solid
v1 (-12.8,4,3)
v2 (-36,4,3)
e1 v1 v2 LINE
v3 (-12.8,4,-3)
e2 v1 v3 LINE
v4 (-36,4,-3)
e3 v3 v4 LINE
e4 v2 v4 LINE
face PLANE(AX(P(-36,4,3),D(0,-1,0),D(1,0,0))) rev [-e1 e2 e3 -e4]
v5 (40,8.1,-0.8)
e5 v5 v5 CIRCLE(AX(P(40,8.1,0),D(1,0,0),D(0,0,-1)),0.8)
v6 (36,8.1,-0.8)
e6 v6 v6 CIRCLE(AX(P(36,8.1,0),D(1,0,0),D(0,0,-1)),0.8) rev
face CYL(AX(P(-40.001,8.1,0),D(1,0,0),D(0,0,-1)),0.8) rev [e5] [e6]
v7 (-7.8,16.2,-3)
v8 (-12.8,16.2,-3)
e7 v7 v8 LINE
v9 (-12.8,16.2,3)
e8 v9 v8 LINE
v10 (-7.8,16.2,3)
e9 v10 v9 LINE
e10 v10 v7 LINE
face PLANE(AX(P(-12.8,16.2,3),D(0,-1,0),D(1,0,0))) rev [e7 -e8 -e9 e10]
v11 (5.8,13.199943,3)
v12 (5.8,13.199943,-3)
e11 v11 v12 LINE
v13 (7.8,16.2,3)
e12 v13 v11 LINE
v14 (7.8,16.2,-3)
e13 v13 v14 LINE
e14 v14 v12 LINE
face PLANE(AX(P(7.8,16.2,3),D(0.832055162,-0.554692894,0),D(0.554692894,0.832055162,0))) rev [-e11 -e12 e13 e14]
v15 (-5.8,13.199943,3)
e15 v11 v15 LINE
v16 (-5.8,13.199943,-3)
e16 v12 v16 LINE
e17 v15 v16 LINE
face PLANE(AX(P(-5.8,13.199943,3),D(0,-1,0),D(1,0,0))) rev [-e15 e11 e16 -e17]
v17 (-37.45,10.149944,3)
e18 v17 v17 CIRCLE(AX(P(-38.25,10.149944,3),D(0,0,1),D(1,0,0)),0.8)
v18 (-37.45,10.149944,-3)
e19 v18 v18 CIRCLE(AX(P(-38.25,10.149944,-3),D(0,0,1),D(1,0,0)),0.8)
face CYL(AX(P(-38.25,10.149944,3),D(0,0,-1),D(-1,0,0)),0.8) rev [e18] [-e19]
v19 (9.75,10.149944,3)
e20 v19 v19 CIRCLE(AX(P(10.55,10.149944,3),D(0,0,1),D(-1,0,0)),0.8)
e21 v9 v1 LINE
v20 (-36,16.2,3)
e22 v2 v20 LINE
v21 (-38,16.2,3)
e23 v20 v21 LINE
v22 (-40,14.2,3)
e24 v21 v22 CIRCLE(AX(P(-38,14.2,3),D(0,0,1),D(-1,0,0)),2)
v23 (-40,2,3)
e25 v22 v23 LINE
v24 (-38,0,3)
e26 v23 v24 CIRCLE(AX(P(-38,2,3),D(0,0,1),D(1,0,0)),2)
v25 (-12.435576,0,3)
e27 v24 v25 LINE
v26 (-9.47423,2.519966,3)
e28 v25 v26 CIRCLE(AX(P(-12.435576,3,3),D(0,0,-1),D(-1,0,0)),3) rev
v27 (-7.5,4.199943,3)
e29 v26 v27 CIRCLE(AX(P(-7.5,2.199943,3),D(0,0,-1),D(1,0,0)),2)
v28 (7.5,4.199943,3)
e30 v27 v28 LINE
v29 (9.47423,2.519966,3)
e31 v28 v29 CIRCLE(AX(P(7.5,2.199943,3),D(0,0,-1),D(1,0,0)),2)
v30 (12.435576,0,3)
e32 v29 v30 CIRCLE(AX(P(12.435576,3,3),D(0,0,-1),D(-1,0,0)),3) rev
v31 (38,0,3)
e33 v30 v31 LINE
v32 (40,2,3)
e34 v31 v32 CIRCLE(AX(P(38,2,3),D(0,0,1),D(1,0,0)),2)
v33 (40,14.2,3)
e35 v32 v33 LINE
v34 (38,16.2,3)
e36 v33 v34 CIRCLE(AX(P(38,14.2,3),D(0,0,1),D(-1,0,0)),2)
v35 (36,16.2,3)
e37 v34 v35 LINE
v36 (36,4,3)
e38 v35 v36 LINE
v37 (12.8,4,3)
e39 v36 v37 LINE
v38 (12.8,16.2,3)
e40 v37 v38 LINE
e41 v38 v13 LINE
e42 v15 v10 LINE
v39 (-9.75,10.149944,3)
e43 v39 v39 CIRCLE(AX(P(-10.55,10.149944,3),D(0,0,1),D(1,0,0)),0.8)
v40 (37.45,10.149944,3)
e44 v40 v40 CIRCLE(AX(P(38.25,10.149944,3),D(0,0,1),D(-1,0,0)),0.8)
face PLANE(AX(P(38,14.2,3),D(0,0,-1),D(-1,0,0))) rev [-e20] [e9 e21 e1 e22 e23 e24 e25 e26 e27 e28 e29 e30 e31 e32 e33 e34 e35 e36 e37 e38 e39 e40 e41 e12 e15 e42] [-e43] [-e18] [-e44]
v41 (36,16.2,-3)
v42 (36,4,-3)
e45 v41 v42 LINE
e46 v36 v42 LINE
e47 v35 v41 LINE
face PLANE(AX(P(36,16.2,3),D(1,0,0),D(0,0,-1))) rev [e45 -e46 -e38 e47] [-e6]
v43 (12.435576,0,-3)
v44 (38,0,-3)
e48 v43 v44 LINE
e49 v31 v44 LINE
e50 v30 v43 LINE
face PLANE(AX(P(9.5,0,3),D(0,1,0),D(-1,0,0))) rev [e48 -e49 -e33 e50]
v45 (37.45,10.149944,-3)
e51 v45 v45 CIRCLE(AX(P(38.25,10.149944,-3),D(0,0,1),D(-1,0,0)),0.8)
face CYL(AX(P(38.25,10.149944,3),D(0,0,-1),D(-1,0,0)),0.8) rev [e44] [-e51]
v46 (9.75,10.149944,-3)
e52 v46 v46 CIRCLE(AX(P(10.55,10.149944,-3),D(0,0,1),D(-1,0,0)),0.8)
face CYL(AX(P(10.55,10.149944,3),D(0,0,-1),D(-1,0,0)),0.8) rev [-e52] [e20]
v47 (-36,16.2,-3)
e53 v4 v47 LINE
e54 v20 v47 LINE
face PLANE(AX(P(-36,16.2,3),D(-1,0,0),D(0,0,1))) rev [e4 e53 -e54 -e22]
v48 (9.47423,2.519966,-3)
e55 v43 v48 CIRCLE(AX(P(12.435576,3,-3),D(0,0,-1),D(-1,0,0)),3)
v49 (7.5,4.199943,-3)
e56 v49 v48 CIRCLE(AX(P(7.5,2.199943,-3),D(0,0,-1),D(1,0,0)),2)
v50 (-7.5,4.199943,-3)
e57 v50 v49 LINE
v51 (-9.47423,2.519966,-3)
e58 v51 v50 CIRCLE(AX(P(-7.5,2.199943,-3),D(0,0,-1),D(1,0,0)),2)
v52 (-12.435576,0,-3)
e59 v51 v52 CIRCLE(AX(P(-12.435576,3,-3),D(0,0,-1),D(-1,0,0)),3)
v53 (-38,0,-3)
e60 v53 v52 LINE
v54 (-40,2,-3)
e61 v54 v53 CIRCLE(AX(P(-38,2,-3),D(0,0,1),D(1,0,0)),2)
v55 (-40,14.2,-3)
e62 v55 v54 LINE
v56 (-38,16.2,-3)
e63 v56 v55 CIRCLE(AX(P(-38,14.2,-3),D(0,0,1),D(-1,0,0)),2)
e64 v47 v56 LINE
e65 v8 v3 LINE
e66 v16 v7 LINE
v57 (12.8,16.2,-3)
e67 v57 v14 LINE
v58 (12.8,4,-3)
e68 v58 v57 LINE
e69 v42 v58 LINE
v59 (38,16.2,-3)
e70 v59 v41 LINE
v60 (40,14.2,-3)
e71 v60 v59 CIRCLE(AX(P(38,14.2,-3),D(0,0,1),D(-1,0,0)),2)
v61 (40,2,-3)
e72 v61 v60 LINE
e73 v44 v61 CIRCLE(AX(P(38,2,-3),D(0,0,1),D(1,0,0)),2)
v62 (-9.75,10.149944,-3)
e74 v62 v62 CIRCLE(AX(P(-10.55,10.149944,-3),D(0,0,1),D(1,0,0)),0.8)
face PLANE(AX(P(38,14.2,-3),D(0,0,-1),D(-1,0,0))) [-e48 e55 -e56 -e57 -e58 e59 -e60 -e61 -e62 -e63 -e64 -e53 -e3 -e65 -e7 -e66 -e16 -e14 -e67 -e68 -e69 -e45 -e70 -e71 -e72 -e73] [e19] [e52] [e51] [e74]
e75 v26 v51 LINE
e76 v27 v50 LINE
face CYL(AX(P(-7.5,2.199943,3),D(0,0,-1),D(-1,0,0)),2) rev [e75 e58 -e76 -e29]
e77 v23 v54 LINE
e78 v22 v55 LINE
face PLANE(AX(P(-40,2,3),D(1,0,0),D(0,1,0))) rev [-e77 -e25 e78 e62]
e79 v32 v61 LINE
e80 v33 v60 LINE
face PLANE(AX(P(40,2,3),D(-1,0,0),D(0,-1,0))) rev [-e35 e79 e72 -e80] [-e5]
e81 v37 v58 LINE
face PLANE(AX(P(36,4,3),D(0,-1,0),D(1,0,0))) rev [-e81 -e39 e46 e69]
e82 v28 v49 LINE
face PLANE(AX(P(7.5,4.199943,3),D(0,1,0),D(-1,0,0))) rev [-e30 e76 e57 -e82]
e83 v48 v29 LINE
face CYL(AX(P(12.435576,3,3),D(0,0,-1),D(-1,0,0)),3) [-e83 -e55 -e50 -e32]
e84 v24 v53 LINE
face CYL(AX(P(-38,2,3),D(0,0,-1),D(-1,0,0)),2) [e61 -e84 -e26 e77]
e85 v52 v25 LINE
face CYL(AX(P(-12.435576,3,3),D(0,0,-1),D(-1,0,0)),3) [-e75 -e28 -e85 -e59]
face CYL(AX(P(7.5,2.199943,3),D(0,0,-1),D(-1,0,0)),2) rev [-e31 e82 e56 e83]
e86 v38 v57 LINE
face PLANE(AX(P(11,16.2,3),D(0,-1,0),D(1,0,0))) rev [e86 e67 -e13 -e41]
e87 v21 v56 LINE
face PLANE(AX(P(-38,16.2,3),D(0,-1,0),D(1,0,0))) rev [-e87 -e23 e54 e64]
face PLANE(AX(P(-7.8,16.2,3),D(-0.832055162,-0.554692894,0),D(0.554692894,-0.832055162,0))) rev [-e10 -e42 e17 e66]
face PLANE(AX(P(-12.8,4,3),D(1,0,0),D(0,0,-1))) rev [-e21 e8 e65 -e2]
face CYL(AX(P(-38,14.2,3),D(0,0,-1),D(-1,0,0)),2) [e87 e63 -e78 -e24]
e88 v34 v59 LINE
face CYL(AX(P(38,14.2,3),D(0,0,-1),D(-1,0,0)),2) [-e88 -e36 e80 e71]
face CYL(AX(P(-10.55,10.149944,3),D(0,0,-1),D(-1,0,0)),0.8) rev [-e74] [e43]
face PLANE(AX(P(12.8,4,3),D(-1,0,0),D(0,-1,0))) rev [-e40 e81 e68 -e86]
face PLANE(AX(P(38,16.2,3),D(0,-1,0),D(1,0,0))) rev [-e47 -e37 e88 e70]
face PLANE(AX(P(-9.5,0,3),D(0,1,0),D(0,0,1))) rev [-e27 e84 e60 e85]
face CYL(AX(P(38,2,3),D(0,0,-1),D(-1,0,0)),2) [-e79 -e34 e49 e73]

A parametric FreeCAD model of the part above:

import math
import FreeCAD as App
import Part
import Sketcher

V = App.Vector


def edges_at(feature, points):
    """Names of the edges that pass closest to the given points."""
    edges = feature.Shape.Edges
    near = lambda p: min(range(len(edges)), key=lambda i: edges[i].distToShape(Part.Vertex(*p))[0])
    return sorted({f"Edge{near(p) + 1}" for p in points})

doc = App.newDocument("Part")
body = doc.addObject("PartDesign::Body", "Body")

# Sketch on XY plane
sketch1 = doc.addObject("Sketcher::SketchObject", "Sketch")
body.addObject(sketch1)
sketch1.AttachmentSupport = (doc.XY_Plane, [""])
sketch1.MapMode = "FlatFace"
sketch1.addGeometry([
    Part.LineSegment(V(-40, 14.2, 0), V(-40, 2, 0)),  # 0
    Part.ArcOfCircle(Part.Circle(V(-38, 2, 0), V(0, 0, 1), 2), math.radians(-180), math.radians(-90)),  # 1
    Part.LineSegment(V(-38, 0, 0), V(-9.5, 0, 0)),  # 2
    Part.LineSegment(V(-9.5, 0, 0), V(-9.5, 2.2, 0)),  # 3
    Part.ArcOfCircle(Part.Circle(V(-7.5, 2.2, 0), V(0, 0, 1), 2), math.radians(90), math.radians(180)),  # 4
    Part.LineSegment(V(-7.5, 4.2, 0), V(7.5, 4.2, 0)),  # 5
    Part.ArcOfCircle(Part.Circle(V(7.5, 2.2, 0), V(0, 0, 1), 2), math.radians(0), math.radians(90)),  # 6
    Part.LineSegment(V(9.5, 2.2, 0), V(9.5, 0, 0)),  # 7
    Part.LineSegment(V(9.5, 0, 0), V(38, 0, 0)),  # 8
    Part.ArcOfCircle(Part.Circle(V(38, 2, 0), V(0, 0, 1), 2), math.radians(-90), math.radians(0)),  # 9
    Part.LineSegment(V(40, 2, 0), V(40, 14.2, 0)),  # 10
    Part.ArcOfCircle(Part.Circle(V(38, 14.2, 0), V(0, 0, 1), 2), math.radians(0), math.radians(90)),  # 11
    Part.LineSegment(V(38, 16.2, 0), V(36, 16.2, 0)),  # 12
    Part.LineSegment(V(36, 16.2, 0), V(36, 4, 0)),  # 13
    Part.LineSegment(V(36, 4, 0), V(12.8, 4, 0)),  # 14
    Part.LineSegment(V(12.8, 4, 0), V(12.8, 16.2, 0)),  # 15
    Part.LineSegment(V(12.8, 16.2, 0), V(7.8, 16.2, 0)),  # 16
    Part.LineSegment(V(7.8, 16.2, 0), V(5.8, 13.2, 0)),  # 17
    Part.LineSegment(V(5.8, 13.2, 0), V(-5.8, 13.2, 0)),  # 18
    Part.LineSegment(V(-5.8, 13.2, 0), V(-7.8, 16.2, 0)),  # 19
    Part.LineSegment(V(-7.8, 16.2, 0), V(-12.8, 16.2, 0)),  # 20
    Part.LineSegment(V(-12.8, 16.2, 0), V(-12.8, 4, 0)),  # 21
    Part.LineSegment(V(-12.8, 4, 0), V(-36, 4, 0)),  # 22
    Part.LineSegment(V(-36, 4, 0), V(-36, 16.2, 0)),  # 23
    Part.LineSegment(V(-36, 16.2, 0), V(-38, 16.2, 0)),  # 24
    Part.ArcOfCircle(Part.Circle(V(-38, 14.2, 0), V(0, 0, 1), 2), math.radians(90), math.radians(180)),  # 25
    Part.Circle(V(38.2, 10.1, 0), V(0, 0, 1), 0.8),  # 26
    Part.Circle(V(10.6, 10.1, 0), V(0, 0, 1), 0.8),  # 27
    Part.Circle(V(-10.6, 10.1, 0), V(0, 0, 1), 0.8),  # 28
    Part.Circle(V(-38.2, 10.1, 0), V(0, 0, 1), 0.8),  # 29
], False)
sketch1.addConstraint([
    Sketcher.Constraint("Tangent", 0, 2, 1, 1),
    Sketcher.Constraint("Tangent", 1, 2, 2, 1),
    Sketcher.Constraint("Coincident", 2, 2, 3, 1),
    Sketcher.Constraint("Tangent", 3, 2, 4, 2),
    Sketcher.Constraint("Tangent", 4, 1, 5, 1),
    Sketcher.Constraint("Tangent", 5, 2, 6, 2),
    Sketcher.Constraint("Tangent", 6, 1, 7, 1),
    Sketcher.Constraint("Coincident", 7, 2, 8, 1),
    Sketcher.Constraint("Tangent", 8, 2, 9, 1),
    Sketcher.Constraint("Tangent", 9, 2, 10, 1),
    Sketcher.Constraint("Tangent", 10, 2, 11, 1),
    Sketcher.Constraint("Tangent", 11, 2, 12, 1),
    Sketcher.Constraint("Coincident", 12, 2, 13, 1),
    Sketcher.Constraint("Coincident", 13, 2, 14, 1),
    Sketcher.Constraint("Coincident", 14, 2, 15, 1),
    Sketcher.Constraint("Coincident", 15, 2, 16, 1),
    Sketcher.Constraint("Coincident", 16, 2, 17, 1),
    Sketcher.Constraint("Coincident", 17, 2, 18, 1),
    Sketcher.Constraint("Coincident", 18, 2, 19, 1),
    Sketcher.Constraint("Coincident", 19, 2, 20, 1),
    Sketcher.Constraint("Coincident", 20, 2, 21, 1),
    Sketcher.Constraint("Coincident", 21, 2, 22, 1),
    Sketcher.Constraint("Coincident", 22, 2, 23, 1),
    Sketcher.Constraint("Coincident", 23, 2, 24, 1),
    Sketcher.Constraint("Tangent", 24, 2, 25, 1),
    Sketcher.Constraint("Tangent", 25, 2, 0, 1),
    Sketcher.Constraint("Vertical", 0),
    Sketcher.Constraint("Horizontal", 2),
    Sketcher.Constraint("Vertical", 3),
    Sketcher.Constraint("Horizontal", 5),
    Sketcher.Constraint("Vertical", 7),
    Sketcher.Constraint("Horizontal", 8),
    Sketcher.Constraint("Vertical", 10),
    Sketcher.Constraint("Horizontal", 12),
    Sketcher.Constraint("Vertical", 13),
    Sketcher.Constraint("Horizontal", 14),
    Sketcher.Constraint("Vertical", 15),
    Sketcher.Constraint("Horizontal", 16),
    Sketcher.Constraint("Horizontal", 18),
    Sketcher.Constraint("Horizontal", 20),
    Sketcher.Constraint("Vertical", 21),
    Sketcher.Constraint("Horizontal", 22),
    Sketcher.Constraint("Vertical", 23),
    Sketcher.Constraint("Horizontal", 24),
    Sketcher.Constraint("Equal", 1, 4),
    Sketcher.Constraint("Equal", 4, 6),
    Sketcher.Constraint("Equal", 6, 9),
    Sketcher.Constraint("Equal", 9, 11),
    Sketcher.Constraint("Equal", 11, 25),
    Sketcher.Constraint("Equal", 26, 27),
    Sketcher.Constraint("Equal", 27, 28),
    Sketcher.Constraint("Equal", 28, 29),
    Sketcher.Constraint("Symmetric", 2, 2, 7, 2, -1, 1),
    Sketcher.Constraint("Symmetric", 1, 3, 9, 3, -2),
    Sketcher.Constraint("Symmetric", 27, 3, 28, 3, -2),
    Sketcher.Constraint("Symmetric", 26, 3, 29, 3, -2),
    Sketcher.Constraint("Symmetric", 16, 2, 19, 2, -2),
    Sketcher.Constraint("Symmetric", 14, 2, 21, 2, -2),
    Sketcher.Constraint("Symmetric", 12, 2, 23, 2, -2),
    Sketcher.Constraint("Horizontal", 26, 3, 27, 3),
    Sketcher.Constraint("Horizontal", 12, 2, 15, 2),
    Sketcher.Constraint("Equal", 10, 13),
    Sketcher.Constraint("Equal", 17, 19),
    Sketcher.Constraint("Radius", 1, 2.0),
    Sketcher.Constraint("Diameter", 26, 1.6),
    Sketcher.Constraint("DistanceX", 5, 1, 5, 2, 15.0),
    Sketcher.Constraint("DistanceX", 12, 2, 12, 1, 2.0),
    Sketcher.Constraint("DistanceX", 16, 2, 16, 1, 5.0),
    Sketcher.Constraint("DistanceX", 2, 1, 2, 2, 28.5),
    Sketcher.Constraint("DistanceX", 14, 2, 14, 1, 23.2),
    Sketcher.Constraint("DistanceX", 18, 2, 18, 1, 11.6),
    Sketcher.Constraint("DistanceY", 0, 2, 0, 1, 12.2),
    Sketcher.Constraint("DistanceY", 5, 2, 17, 2, 9.0),
    Sketcher.Constraint("DistanceX", 27, 3, 26, 3, 27.7),
    Sketcher.Constraint("DistanceX", 28, 3, 27, 3, 21.1),
    Sketcher.Constraint("DistanceY", 6, 3, 26, 3, 7.950001),
    Sketcher.Constraint("Distance", 17, 3.605599),
])
pad1 = doc.addObject("PartDesign::Pad", "Pad")
body.addObject(pad1)
pad1.Profile = sketch1
pad1.Length = 6
pad1.Midplane = True
doc.recompute()

fillet = doc.addObject("PartDesign::Fillet", "Fillet")
body.addObject(fillet)
fillet.Base = (pad1, edges_at(pad1, [(9.5, 0, 0), (-9.5, 0, 0)]))
fillet.Radius = 3

# Sketch on YZ plane
sketch2 = doc.addObject("Sketcher::SketchObject", "Sketch001")
body.addObject(sketch2)
sketch2.AttachmentSupport = (doc.YZ_Plane, [""])
sketch2.MapMode = "FlatFace"
sketch2.AttachmentOffset = App.Placement(V(0, 0, 40), App.Rotation())
sketch2.addGeometry(Part.Circle(V(8.1, 0, 0), V(0, 0, 1), 0.8), False)
sketch2.addConstraint([
    Sketcher.Constraint("PointOnObject", 0, 3, -1),
    Sketcher.Constraint("Diameter", 0, 1.6),
    Sketcher.Constraint("DistanceX", -1, 1, 0, 3, 8.1),
])
pocket1 = doc.addObject("PartDesign::Pocket", "Pocket")
body.addObject(pocket1)
pocket1.Profile = sketch2
pocket1.Type = "UpToFirst"

doc.recompute()
